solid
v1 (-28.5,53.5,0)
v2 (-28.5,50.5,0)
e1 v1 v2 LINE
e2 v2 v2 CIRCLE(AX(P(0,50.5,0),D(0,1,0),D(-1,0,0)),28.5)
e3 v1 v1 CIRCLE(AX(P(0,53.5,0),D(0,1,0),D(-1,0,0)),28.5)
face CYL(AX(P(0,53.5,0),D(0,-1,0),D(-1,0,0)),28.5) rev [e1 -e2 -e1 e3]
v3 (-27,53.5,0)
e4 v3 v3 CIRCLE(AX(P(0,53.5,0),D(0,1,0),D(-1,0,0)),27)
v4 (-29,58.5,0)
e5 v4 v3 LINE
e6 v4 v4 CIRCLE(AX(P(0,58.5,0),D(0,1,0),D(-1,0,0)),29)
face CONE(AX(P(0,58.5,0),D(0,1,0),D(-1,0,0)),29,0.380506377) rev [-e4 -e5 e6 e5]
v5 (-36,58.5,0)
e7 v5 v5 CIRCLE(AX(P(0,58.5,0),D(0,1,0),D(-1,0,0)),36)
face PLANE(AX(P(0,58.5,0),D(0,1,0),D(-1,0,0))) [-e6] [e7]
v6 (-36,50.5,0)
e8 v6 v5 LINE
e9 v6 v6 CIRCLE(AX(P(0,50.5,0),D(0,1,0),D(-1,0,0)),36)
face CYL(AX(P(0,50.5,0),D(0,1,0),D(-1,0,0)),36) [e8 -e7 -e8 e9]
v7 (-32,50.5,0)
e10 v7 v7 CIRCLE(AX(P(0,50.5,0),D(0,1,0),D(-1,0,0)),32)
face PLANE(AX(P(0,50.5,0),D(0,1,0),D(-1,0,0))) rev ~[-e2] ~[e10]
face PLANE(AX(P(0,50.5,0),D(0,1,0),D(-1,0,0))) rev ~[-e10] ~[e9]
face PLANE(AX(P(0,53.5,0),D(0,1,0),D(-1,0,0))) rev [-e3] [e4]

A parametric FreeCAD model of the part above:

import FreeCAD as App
import Part
import Sketcher

V = App.Vector

doc = App.newDocument("Part")
body = doc.addObject("PartDesign::Body", "Body")

sketch1 = doc.addObject("Sketcher::SketchObject", "Sketch")
body.addObject(sketch1)
sketch1.AttachmentSupport = (doc.XY_Plane, [""])
sketch1.MapMode = "FlatFace"
sketch1.addGeometry(Part.LineSegment(V(-36, 58.5, 0), V(-36, 50.5, 0)), False)
sketch1.addGeometry(Part.LineSegment(V(-36, 50.5, 0), V(-28.5, 50.5, 0)), False)
sketch1.addGeometry(Part.LineSegment(V(-28.5, 50.5, 0), V(-28.5, 53.5, 0)), False)
sketch1.addGeometry(Part.LineSegment(V(-28.5, 53.5, 0), V(-27, 53.5, 0)), False)
sketch1.addGeometry(Part.LineSegment(V(-27, 53.5, 0), V(-29, 58.5, 0)), False)
sketch1.addGeometry(Part.LineSegment(V(-29, 58.5, 0), V(-36, 58.5, 0)), False)
sketch1.addConstraint(Sketcher.Constraint("Coincident", 0, 2, 1, 1))
sketch1.addConstraint(Sketcher.Constraint("Coincident", 1, 2, 2, 1))
sketch1.addConstraint(Sketcher.Constraint("Coincident", 2, 2, 3, 1))
sketch1.addConstraint(Sketcher.Constraint("Coincident", 3, 2, 4, 1))
sketch1.addConstraint(Sketcher.Constraint("Coincident", 4, 2, 5, 1))
sketch1.addConstraint(Sketcher.Constraint("Coincident", 5, 2, 0, 1))
sketch1.addConstraint(Sketcher.Constraint("Vertical", 0))
sketch1.addConstraint(Sketcher.Constraint("Horizontal", 1))
sketch1.addConstraint(Sketcher.Constraint("Vertical", 2))
sketch1.addConstraint(Sketcher.Constraint("Horizontal", 3))
sketch1.addConstraint(Sketcher.Constraint("Horizontal", 5))
sketch1.addConstraint(Sketcher.Constraint("DistanceX", 5, 2, 5, 1, 7.0))
sketch1.addConstraint(Sketcher.Constraint("DistanceY", 0, 2, 0, 1, 8.0))
sketch1.addConstraint(Sketcher.Constraint("DistanceY", 2, 1, 2, 2, 3.0))
sketch1.addConstraint(Sketcher.Constraint("DistanceX", 3, 1, 3, 2, 1.5))
sketch1.addConstraint(Sketcher.Constraint("DistanceX", 1, 1, 1, 2, 7.5))
sketch1.addConstraint(Sketcher.Constraint("DistanceX", 0, 2, -1, 1, 36.0))
sketch1.addConstraint(Sketcher.Constraint("DistanceY", -1, 1, 0, 2, 50.5))
revolution = doc.addObject("PartDesign::Revolution", "Revolution")
body.addObject(revolution)
revolution.Profile = sketch1
revolution.ReferenceAxis = (sketch1, ["V_Axis"])
revolution.Angle = 360

doc.recompute()
